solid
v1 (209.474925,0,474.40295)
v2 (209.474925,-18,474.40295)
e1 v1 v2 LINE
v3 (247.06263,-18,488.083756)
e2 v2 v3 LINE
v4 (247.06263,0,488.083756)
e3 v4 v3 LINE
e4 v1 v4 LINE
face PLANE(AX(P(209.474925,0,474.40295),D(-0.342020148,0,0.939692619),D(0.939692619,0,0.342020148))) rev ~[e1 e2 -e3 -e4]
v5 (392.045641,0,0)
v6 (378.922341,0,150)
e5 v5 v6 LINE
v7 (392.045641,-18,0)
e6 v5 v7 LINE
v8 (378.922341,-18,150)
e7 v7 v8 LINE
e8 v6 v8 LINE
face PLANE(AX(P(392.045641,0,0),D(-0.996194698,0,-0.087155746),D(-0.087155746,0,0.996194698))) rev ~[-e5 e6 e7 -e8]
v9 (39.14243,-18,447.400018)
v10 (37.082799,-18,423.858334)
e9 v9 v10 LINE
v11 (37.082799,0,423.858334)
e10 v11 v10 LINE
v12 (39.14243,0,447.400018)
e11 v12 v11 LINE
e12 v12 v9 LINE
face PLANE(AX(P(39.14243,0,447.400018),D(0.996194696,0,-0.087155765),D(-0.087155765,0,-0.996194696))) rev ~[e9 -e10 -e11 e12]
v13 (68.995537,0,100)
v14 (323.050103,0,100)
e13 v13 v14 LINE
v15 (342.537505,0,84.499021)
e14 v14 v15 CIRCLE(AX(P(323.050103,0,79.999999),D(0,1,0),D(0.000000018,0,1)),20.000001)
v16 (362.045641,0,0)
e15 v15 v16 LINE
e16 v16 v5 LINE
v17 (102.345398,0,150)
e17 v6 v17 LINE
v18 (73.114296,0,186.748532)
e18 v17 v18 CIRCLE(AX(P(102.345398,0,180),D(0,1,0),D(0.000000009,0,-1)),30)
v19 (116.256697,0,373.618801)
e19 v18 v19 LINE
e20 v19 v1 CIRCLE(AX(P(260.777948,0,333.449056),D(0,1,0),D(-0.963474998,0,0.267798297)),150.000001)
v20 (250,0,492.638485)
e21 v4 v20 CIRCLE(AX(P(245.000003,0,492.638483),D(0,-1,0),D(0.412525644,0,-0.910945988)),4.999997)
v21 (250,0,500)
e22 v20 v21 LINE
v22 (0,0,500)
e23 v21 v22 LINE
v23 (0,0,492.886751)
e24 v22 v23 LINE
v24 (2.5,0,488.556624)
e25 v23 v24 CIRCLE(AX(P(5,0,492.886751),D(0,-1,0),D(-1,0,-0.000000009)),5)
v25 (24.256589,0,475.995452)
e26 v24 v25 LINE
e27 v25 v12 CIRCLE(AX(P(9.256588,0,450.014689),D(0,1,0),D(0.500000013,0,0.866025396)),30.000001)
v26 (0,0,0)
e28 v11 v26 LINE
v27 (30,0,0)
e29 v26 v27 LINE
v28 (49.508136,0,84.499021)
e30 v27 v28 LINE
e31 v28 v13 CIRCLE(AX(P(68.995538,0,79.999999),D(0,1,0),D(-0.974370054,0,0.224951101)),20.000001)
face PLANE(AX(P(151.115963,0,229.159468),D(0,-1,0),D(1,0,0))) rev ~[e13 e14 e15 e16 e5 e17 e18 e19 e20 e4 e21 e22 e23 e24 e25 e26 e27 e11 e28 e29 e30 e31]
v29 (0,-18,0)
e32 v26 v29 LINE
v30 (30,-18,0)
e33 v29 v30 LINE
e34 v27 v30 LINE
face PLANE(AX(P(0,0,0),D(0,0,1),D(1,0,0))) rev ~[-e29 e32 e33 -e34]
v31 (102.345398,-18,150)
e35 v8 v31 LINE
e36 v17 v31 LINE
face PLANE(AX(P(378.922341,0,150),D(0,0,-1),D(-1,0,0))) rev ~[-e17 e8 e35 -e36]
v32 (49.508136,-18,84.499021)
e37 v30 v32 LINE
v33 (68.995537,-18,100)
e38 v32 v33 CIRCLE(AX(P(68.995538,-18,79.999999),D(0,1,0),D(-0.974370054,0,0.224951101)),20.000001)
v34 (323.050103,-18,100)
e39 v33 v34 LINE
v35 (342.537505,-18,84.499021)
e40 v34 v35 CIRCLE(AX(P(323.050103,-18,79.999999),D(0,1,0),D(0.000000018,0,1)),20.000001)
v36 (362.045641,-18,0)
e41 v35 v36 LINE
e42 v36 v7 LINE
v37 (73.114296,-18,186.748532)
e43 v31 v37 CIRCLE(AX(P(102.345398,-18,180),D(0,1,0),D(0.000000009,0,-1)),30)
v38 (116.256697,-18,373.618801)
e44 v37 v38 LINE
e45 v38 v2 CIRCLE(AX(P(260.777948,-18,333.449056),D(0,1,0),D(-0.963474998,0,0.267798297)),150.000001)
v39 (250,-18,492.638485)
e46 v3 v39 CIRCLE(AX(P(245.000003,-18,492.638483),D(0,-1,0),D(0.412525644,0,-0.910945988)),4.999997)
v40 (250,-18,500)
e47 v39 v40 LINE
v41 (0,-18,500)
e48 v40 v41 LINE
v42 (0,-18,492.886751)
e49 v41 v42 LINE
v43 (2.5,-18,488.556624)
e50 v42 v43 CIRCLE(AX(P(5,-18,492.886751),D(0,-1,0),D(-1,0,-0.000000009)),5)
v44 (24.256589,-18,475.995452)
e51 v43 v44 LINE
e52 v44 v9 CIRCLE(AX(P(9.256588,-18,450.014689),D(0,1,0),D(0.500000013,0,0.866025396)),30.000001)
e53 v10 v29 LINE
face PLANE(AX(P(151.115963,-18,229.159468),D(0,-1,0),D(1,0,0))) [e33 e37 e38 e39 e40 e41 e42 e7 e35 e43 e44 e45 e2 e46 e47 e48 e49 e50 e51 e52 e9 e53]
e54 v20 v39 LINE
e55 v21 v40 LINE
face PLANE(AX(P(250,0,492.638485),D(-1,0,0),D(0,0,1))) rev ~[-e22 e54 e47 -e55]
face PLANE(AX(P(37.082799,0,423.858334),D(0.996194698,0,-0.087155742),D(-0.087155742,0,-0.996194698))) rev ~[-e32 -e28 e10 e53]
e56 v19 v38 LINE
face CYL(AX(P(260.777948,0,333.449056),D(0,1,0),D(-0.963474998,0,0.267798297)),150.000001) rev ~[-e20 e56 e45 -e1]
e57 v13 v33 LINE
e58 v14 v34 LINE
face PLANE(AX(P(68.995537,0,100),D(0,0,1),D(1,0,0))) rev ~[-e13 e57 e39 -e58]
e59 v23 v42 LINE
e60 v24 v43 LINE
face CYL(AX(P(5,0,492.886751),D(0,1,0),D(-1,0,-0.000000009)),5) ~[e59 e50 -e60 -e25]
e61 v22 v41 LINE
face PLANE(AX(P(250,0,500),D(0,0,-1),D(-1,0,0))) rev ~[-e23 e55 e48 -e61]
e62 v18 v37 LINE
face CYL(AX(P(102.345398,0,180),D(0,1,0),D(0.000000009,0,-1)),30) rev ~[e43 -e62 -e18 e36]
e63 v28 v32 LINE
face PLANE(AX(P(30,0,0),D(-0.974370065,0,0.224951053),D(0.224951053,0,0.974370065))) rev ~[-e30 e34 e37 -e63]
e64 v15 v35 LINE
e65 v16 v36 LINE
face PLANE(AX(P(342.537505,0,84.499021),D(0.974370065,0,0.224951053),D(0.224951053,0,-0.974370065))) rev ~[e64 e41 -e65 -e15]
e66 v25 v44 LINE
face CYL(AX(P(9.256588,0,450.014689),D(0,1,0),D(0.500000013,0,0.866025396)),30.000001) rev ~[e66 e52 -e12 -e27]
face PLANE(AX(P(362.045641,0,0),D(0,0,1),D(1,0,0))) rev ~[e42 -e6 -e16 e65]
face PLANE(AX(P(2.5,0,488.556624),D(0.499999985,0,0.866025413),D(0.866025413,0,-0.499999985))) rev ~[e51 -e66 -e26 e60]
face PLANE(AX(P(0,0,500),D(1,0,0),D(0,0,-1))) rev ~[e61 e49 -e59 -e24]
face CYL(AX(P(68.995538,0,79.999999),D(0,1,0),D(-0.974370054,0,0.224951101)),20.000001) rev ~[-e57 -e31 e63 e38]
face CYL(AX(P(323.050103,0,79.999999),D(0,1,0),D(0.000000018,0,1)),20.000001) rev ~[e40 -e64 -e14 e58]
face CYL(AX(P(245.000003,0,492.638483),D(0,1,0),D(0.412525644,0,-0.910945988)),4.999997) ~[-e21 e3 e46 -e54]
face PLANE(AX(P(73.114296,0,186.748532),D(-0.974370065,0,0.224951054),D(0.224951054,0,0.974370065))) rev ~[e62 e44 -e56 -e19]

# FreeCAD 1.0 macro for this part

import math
import FreeCAD as App
import Part
import Sketcher

V = App.Vector
Q = App.Units.Quantity

doc = App.newDocument("Part")
body = doc.addObject("PartDesign::Body", "Body")

sketch1 = body.newObject("Sketcher::SketchObject", "Sketch")
sketch1.AttachmentSupport = (doc.getObject("XZ_Plane"), [""])
sketch1.MapMode = "FlatFace"
sketch1.addGeometry(Part.LineSegment(V(0, 0, 0), V(30, 0, 0)), False)
sketch1.addGeometry(Part.LineSegment(V(30, 0, 0), V(49.508136, 84.499021, 0)), False)
sketch1.addGeometry(Part.ArcOfCircle(Part.Circle(V(68.995538, 79.999999, 0), V(0, 0, 1), 20.000001), math.radians(90.000004), math.radians(166.999997)), False)
sketch1.addGeometry(Part.LineSegment(V(68.995537, 100, 0), V(323.050103, 100, 0)), False)
sketch1.addGeometry(Part.ArcOfCircle(Part.Circle(V(323.050103, 79.999999, 0), V(0, 0, 1), 20.000001), math.radians(13.000003), math.radians(89.999999)), False)
sketch1.addGeometry(Part.LineSegment(V(342.537505, 84.499021, 0), V(362.045641, 0, 0)), False)
sketch1.addGeometry(Part.LineSegment(V(362.045641, 0, 0), V(392.045641, 0, 0)), False)
sketch1.addGeometry(Part.LineSegment(V(392.045641, 0, 0), V(378.922341, 150, 0)), False)
sketch1.addGeometry(Part.LineSegment(V(378.922341, 150, 0), V(102.345398, 150, 0)), False)
sketch1.addGeometry(Part.ArcOfCircle(Part.Circle(V(102.345398, 180, 0), V(0, 0, 1), 30), math.radians(166.999999), math.radians(270.000001)), False)
sketch1.addGeometry(Part.LineSegment(V(73.114296, 186.748532, 0), V(116.256697, 373.618801, 0)), False)
sketch1.addGeometry(Part.ArcOfCircle(Part.Circle(V(260.777948, 333.449056, 0), V(0, 0, 1), 150.000001), math.radians(110), math.radians(164.466705)), False)
sketch1.addGeometry(Part.LineSegment(V(209.474925, 474.40295, 0), V(247.06263, 488.083756, 0)), False)
sketch1.addGeometry(Part.ArcOfCircle(Part.Circle(V(245.000003, 492.638483, 0), V(0, 0, 1), 4.999997), math.radians(-65.636409), math.radians(0.000021)), False)
sketch1.addGeometry(Part.LineSegment(V(250, 492.638485, 0), V(250, 500, 0)), False)
sketch1.addGeometry(Part.LineSegment(V(250, 500, 0), V(0, 500, 0)), False)
sketch1.addGeometry(Part.LineSegment(V(0, 500, 0), V(0, 492.886751, 0)), False)
sketch1.addGeometry(Part.ArcOfCircle(Part.Circle(V(5, 492.886751, 0), V(0, 0, 1), 5), math.radians(-179.999999), math.radians(-120)), False)
sketch1.addGeometry(Part.LineSegment(V(2.5, 488.556624, 0), V(24.256589, 475.995452, 0)), False)
sketch1.addGeometry(Part.ArcOfCircle(Part.Circle(V(9.256588, 450.014689, 0), V(0, 0, 1), 30.000001), math.radians(-4.999998), math.radians(59.999999)), False)
sketch1.addGeometry(Part.LineSegment(V(39.14243, 447.400018, 0), V(37.082799, 423.858334, 0)), False)
sketch1.addGeometry(Part.LineSegment(V(37.082799, 423.858334, 0), V(0, 0, 0)), False)
sketch1.addConstraint(Sketcher.Constraint("Coincident", 0, 2, 1, 1))
sketch1.addConstraint(Sketcher.Constraint("Coincident", 1, 2, 2, 2))
sketch1.addConstraint(Sketcher.Constraint("Coincident", 2, 1, 3, 1))
sketch1.addConstraint(Sketcher.Constraint("Coincident", 3, 2, 4, 2))
sketch1.addConstraint(Sketcher.Constraint("Coincident", 4, 1, 5, 1))
sketch1.addConstraint(Sketcher.Constraint("Coincident", 5, 2, 6, 1))
sketch1.addConstraint(Sketcher.Constraint("Coincident", 6, 2, 7, 1))
sketch1.addConstraint(Sketcher.Constraint("Coincident", 7, 2, 8, 1))
sketch1.addConstraint(Sketcher.Constraint("Coincident", 8, 2, 9, 2))
sketch1.addConstraint(Sketcher.Constraint("Coincident", 9, 1, 10, 1))
sketch1.addConstraint(Sketcher.Constraint("Coincident", 10, 2, 11, 2))
sketch1.addConstraint(Sketcher.Constraint("Coincident", 11, 1, 12, 1))
sketch1.addConstraint(Sketcher.Constraint("Coincident", 12, 2, 13, 1))
sketch1.addConstraint(Sketcher.Constraint("Coincident", 13, 2, 14, 1))
sketch1.addConstraint(Sketcher.Constraint("Coincident", 14, 2, 15, 1))
sketch1.addConstraint(Sketcher.Constraint("Coincident", 15, 2, 16, 1))
sketch1.addConstraint(Sketcher.Constraint("Coincident", 16, 2, 17, 1))
sketch1.addConstraint(Sketcher.Constraint("Coincident", 17, 2, 18, 1))
sketch1.addConstraint(Sketcher.Constraint("Coincident", 18, 2, 19, 2))
sketch1.addConstraint(Sketcher.Constraint("Coincident", 19, 1, 20, 1))
sketch1.addConstraint(Sketcher.Constraint("Coincident", 20, 2, 21, 1))
sketch1.addConstraint(Sketcher.Constraint("Coincident", 21, 2, 0, 1))
sketch1.addConstraint(Sketcher.Constraint("Horizontal", 0))
sketch1.addConstraint(Sketcher.Constraint("Horizontal", 3))
sketch1.addConstraint(Sketcher.Constraint("Horizontal", 6))
sketch1.addConstraint(Sketcher.Constraint("Horizontal", 8))
sketch1.addConstraint(Sketcher.Constraint("Vertical", 14))
sketch1.addConstraint(Sketcher.Constraint("Horizontal", 15))
sketch1.addConstraint(Sketcher.Constraint("Vertical", 16))
sketch1.addConstraint(Sketcher.Constraint("Coincident", 21, 2, -1, 1))
sketch1.addConstraint(Sketcher.Constraint("PointOnObject", 5, 2, -1))
sketch1.addConstraint(Sketcher.Constraint("PointOnObject", 15, 2, -2))
sketch1.addConstraint(Sketcher.Constraint("Radius", 2, Q("20.000001 mm")))
sketch1.addConstraint(Sketcher.Constraint("Radius", 4, Q("20.000001 mm")))
sketch1.addConstraint(Sketcher.Constraint("Radius", 9, Q("30 mm")))
sketch1.addConstraint(Sketcher.Constraint("Radius", 11, Q("150.000001 mm")))
sketch1.addConstraint(Sketcher.Constraint("Radius", 17, Q("5 mm")))
sketch1.addConstraint(Sketcher.Constraint("Radius", 19, Q("30.000001 mm")))
sketch1.addConstraint(Sketcher.Constraint("DistanceX", 0, 1, 0, 2, Q("30 mm")))
sketch1.addConstraint(Sketcher.Constraint("DistanceX", 6, 1, 6, 2, Q("30 mm")))
sketch1.addConstraint(Sketcher.Constraint("DistanceX", 15, 2, 15, 1, Q("250 mm")))
sketch1.addConstraint(Sketcher.Constraint("Distance", 12, Q("40 mm")))
sketch1.addConstraint(Sketcher.Constraint("DistanceY", -1, 1, 2, 3, Q("79.999999 mm")))
sketch1.addConstraint(Sketcher.Constraint("DistanceY", -1, 1, 9, 3, Q("180 mm")))
sketch1.addConstraint(Sketcher.Constraint("DistanceY", -1, 1, 14, 2, Q("500 mm")))
sketch1.addConstraint(Sketcher.Constraint("DistanceX", 19, 3, 18, 2, Q("15.000001 mm")))
sketch1.addConstraint(Sketcher.Constraint("DistanceX", -1, 1, 17, 2, Q("2.5 mm")))
sketch1.addConstraint(Sketcher.Constraint("Radius", 13, Q("4.999997 mm")))
sketch1.addConstraint(Sketcher.Constraint("DistanceY", 16, 2, 16, 1, Q("7.113249 mm")))
sketch1.addConstraint(Sketcher.Constraint("DistanceX", -1, 1, 8, 2, Q("102.345398 mm")))
sketch1.addConstraint(Sketcher.Constraint("DistanceY", -1, 1, 10, 2, Q("373.618801 mm")))
sketch1.addConstraint(Sketcher.Constraint("DistanceX", -1, 1, 20, 2, Q("37.082799 mm")))
sketch1.addConstraint(Sketcher.Constraint("DistanceX", 13, 3, 4, 3, Q("78.0501 mm")))
sketch1.addConstraint(Sketcher.Constraint("DistanceX", 1, 2, 2, 1, Q("19.487401 mm")))
sketch1.addConstraint(Sketcher.Constraint("DistanceX", 7, 2, 6, 2, Q("13.1233 mm")))
sketch1.addConstraint(Sketcher.Constraint("DistanceX", 9, 1, 9, 3, Q("29.231102 mm")))
sketch1.addConstraint(Sketcher.Constraint("DistanceX", 9, 1, 10, 2, Q("43.142401 mm")))
sketch1.addConstraint(Sketcher.Constraint("DistanceY", 11, 1, 17, 3, Q("18.483801 mm")))
sketch1.addConstraint(Sketcher.Constraint("DistanceY", 11, 3, 12, 2, Q("154.6347 mm")))
sketch1.addConstraint(Sketcher.Constraint("DistanceY", 11, 1, 16, 2, Q("18.483801 mm")))
sketch1.addConstraint(Sketcher.Constraint("DistanceY", 18, 2, 17, 3, Q("16.891299 mm")))
sketch1.addConstraint(Sketcher.Constraint("Distance", 20, Q("23.631609 mm")))
sketch1.addConstraint(Sketcher.Constraint("DistanceX", 3, 1, 3, 2, Q("254.054566 mm")))
sketch1.addConstraint(Sketcher.Constraint("DistanceX", 8, 2, 8, 1, Q("276.576943 mm")))
sketch1.addConstraint(Sketcher.Constraint("DistanceY", 14, 1, 14, 2, Q("7.361515 mm")))
sketch1.addConstraint(Sketcher.Constraint("DistanceX", -1, 1, 2, 3, Q("68.995538 mm")))
sketch1.addConstraint(Sketcher.Constraint("DistanceX", -1, 1, 19, 3, Q("9.256588 mm")))
sketch1.addConstraint(Sketcher.Constraint("DistanceY", -1, 1, 1, 2, Q("84.499021 mm")))
sketch1.addConstraint(Sketcher.Constraint("DistanceY", -1, 1, 4, 1, Q("84.499021 mm")))
sketch1.addConstraint(Sketcher.Constraint("DistanceX", -1, 1, 12, 2, Q("247.06263 mm")))
sketch1.addConstraint(Sketcher.Constraint("DistanceX", -1, 1, 19, 1, Q("39.14243 mm")))
sketch1.addConstraint(Sketcher.Constraint("DistanceX", 2, 3, 9, 3, Q("33.349859 mm")))
pad1 = body.newObject("PartDesign::Pad", "Pad")
pad1.Profile = sketch1
pad1.Length = 18

doc.recompute()
